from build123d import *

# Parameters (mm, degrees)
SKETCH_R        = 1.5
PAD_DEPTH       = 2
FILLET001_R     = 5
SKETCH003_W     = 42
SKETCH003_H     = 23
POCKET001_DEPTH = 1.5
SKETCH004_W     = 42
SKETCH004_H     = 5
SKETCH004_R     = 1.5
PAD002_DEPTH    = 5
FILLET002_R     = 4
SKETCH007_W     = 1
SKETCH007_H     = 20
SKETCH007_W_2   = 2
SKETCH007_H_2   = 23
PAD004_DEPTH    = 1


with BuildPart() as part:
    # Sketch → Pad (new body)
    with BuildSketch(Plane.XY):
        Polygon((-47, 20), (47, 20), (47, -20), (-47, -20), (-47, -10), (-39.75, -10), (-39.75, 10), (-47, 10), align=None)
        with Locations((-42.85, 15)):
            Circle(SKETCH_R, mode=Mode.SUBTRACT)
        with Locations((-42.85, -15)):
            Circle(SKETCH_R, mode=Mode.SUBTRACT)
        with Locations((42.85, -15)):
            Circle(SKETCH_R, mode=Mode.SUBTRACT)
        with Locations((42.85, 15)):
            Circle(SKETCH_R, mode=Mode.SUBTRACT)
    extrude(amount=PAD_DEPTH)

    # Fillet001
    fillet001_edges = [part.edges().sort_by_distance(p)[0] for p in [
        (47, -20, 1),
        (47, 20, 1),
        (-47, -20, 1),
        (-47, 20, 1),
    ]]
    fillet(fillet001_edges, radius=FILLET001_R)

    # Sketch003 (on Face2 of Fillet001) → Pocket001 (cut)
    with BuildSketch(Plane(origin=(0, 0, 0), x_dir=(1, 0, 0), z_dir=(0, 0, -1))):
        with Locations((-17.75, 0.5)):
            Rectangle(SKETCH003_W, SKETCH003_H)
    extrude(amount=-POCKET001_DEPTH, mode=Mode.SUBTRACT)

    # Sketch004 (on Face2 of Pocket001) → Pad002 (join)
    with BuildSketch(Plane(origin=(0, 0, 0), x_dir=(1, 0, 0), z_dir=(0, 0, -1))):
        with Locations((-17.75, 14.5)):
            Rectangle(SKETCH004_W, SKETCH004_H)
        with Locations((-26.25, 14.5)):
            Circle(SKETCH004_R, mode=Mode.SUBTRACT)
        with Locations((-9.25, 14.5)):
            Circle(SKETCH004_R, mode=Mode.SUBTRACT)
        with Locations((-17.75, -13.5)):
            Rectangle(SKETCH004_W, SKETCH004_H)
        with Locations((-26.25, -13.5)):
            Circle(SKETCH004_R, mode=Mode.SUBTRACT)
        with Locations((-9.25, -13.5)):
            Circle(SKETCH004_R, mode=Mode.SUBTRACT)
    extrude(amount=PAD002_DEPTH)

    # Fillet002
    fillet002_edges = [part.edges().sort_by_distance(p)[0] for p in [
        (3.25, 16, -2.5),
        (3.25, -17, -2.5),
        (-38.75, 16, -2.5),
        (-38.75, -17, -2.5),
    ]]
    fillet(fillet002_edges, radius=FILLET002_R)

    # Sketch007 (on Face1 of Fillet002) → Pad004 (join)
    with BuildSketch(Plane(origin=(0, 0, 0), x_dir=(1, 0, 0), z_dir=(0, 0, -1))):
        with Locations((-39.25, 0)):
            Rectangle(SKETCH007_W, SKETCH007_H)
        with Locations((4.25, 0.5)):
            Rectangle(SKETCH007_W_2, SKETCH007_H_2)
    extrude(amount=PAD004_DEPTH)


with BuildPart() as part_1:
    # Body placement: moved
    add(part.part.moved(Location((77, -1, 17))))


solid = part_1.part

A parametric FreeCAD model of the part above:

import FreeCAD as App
import Part
import Sketcher
from FreeCAD import Vector


def edges_at(feature, points):
    """Names of the edges that pass closest to the given points."""
    edges = feature.Shape.Edges
    near = lambda p: min(range(len(edges)), key=lambda i: edges[i].distToShape(Part.Vertex(*p))[0])
    return sorted({f"Edge{near(p) + 1}" for p in points})

doc = App.newDocument("Part")
body = doc.addObject("PartDesign::Body", "Body")

# Sketch on XY plane
sketch1 = body.newObject("Sketcher::SketchObject", "Sketch")
sketch1.AttachmentSupport = (doc.getObject("XY_Plane"), [""])
sketch1.MapMode = "FlatFace"
sketch1.addGeometry(Part.LineSegment(Vector(47, 20, 0), Vector(-47, 20, 0)), False)
sketch1.addGeometry(Part.LineSegment(Vector(-47, 20, 0), Vector(-47, 10, 0)), False)
sketch1.addGeometry(Part.LineSegment(Vector(-47, 10, 0), Vector(-39.8, 10, 0)), False)
sketch1.addGeometry(Part.LineSegment(Vector(-39.8, 10, 0), Vector(-39.8, -10, 0)), False)
sketch1.addGeometry(Part.LineSegment(Vector(-39.8, -10, 0), Vector(-47, -10, 0)), False)
sketch1.addGeometry(Part.LineSegment(Vector(-47, -10, 0), Vector(-47, -20, 0)), False)
sketch1.addGeometry(Part.LineSegment(Vector(-47, -20, 0), Vector(47, -20, 0)), False)
sketch1.addGeometry(Part.LineSegment(Vector(47, -20, 0), Vector(47, 20, 0)), False)
sketch1.addGeometry(Part.Circle(Vector(42.9, -15, 0), Vector(0, 0, 1), 1.5), False)
sketch1.addGeometry(Part.Circle(Vector(-42.9, -15, 0), Vector(0, 0, 1), 1.5), False)
sketch1.addGeometry(Part.Circle(Vector(42.9, 15, 0), Vector(0, 0, 1), 1.5), False)
sketch1.addGeometry(Part.Circle(Vector(-42.9, 15, 0), Vector(0, 0, 1), 1.5), False)
sketch1.addConstraint(Sketcher.Constraint("Coincident", 0, 2, 1, 1))
sketch1.addConstraint(Sketcher.Constraint("Coincident", 1, 2, 2, 1))
sketch1.addConstraint(Sketcher.Constraint("Coincident", 2, 2, 3, 1))
sketch1.addConstraint(Sketcher.Constraint("Coincident", 3, 2, 4, 1))
sketch1.addConstraint(Sketcher.Constraint("Coincident", 4, 2, 5, 1))
sketch1.addConstraint(Sketcher.Constraint("Coincident", 5, 2, 6, 1))
sketch1.addConstraint(Sketcher.Constraint("Coincident", 6, 2, 7, 1))
sketch1.addConstraint(Sketcher.Constraint("Coincident", 7, 2, 0, 1))
sketch1.addConstraint(Sketcher.Constraint("Horizontal", 0))
sketch1.addConstraint(Sketcher.Constraint("Vertical", 1))
sketch1.addConstraint(Sketcher.Constraint("Horizontal", 2))
sketch1.addConstraint(Sketcher.Constraint("Vertical", 3))
sketch1.addConstraint(Sketcher.Constraint("Horizontal", 4))
sketch1.addConstraint(Sketcher.Constraint("Vertical", 5))
sketch1.addConstraint(Sketcher.Constraint("Horizontal", 6))
sketch1.addConstraint(Sketcher.Constraint("Vertical", 7))
sketch1.addConstraint(Sketcher.Constraint("Equal", 8, 9))
sketch1.addConstraint(Sketcher.Constraint("Equal", 9, 10))
sketch1.addConstraint(Sketcher.Constraint("Equal", 10, 11))
sketch1.addConstraint(Sketcher.Constraint("Symmetric", 9, 3, 10, 3, -1, 1))
sketch1.addConstraint(Sketcher.Constraint("Symmetric", 8, 3, 11, 3, -1, 1))
sketch1.addConstraint(Sketcher.Constraint("Symmetric", 0, 2, 6, 2, -1, 1))
sketch1.addConstraint(Sketcher.Constraint("Symmetric", 8, 3, 9, 3, -2))
sketch1.addConstraint(Sketcher.Constraint("Symmetric", 1, 2, 4, 2, -1))
sketch1.addConstraint(Sketcher.Constraint("Diameter", 8, 3.0))
sketch1.addConstraint(Sketcher.Constraint("DistanceX", 0, 2, 0, 1, 94.0))
sketch1.addConstraint(Sketcher.Constraint("DistanceY", 1, 2, 1, 1, 10.0))
sketch1.addConstraint(Sketcher.Constraint("DistanceY", 3, 2, 3, 1, 20.0))
sketch1.addConstraint(Sketcher.Constraint("DistanceY", 8, 3, -1, 1, 15.0))
sketch1.addConstraint(Sketcher.Constraint("DistanceX", 2, 1, 2, 2, 7.25))
sketch1.addConstraint(Sketcher.Constraint("DistanceX", 9, 3, 8, 3, 85.7))
pad1 = body.newObject("PartDesign::Pad", "Pad")
pad1.Profile = sketch1
pad1.Length = 2
doc.recompute()

fillet = body.newObject("PartDesign::Fillet", "Fillet")
fillet.Base = (pad1, edges_at(pad1, [
    (47, -20, 1),
    (47, 20, 1),
    (-47, -20, 1),
    (-47, 20, 1),
]))
fillet.Radius = 5

# Sketch on XY plane
sketch2 = body.newObject("Sketcher::SketchObject", "Sketch001")
sketch2.AttachmentSupport = (doc.getObject("XY_Plane"), [""])
sketch2.MapMode = "FlatFace"
sketch2.addGeometry(Part.LineSegment(Vector(-39, -12, 0), Vector(-39, 11, 0)), False)
sketch2.addGeometry(Part.LineSegment(Vector(-39, 11, 0), Vector(3, 11, 0)), False)
sketch2.addGeometry(Part.LineSegment(Vector(3, 11, 0), Vector(3, -12, 0)), False)
sketch2.addGeometry(Part.LineSegment(Vector(3, -12, 0), Vector(-39, -12, 0)), False)
sketch2.addConstraint(Sketcher.Constraint("Coincident", 0, 2, 1, 1))
sketch2.addConstraint(Sketcher.Constraint("Coincident", 1, 2, 2, 1))
sketch2.addConstraint(Sketcher.Constraint("Coincident", 2, 2, 3, 1))
sketch2.addConstraint(Sketcher.Constraint("Coincident", 3, 2, 0, 1))
sketch2.addConstraint(Sketcher.Constraint("Vertical", 0))
sketch2.addConstraint(Sketcher.Constraint("Horizontal", 1))
sketch2.addConstraint(Sketcher.Constraint("Vertical", 2))
sketch2.addConstraint(Sketcher.Constraint("Horizontal", 3))
sketch2.addConstraint(Sketcher.Constraint("DistanceX", 1, 1, 1, 2, 42.0))
sketch2.addConstraint(Sketcher.Constraint("DistanceY", 0, 1, 0, 2, 23.0))
sketch2.addConstraint(Sketcher.Constraint("DistanceY", -1, 1, 0, 2, 11.0))
sketch2.addConstraint(Sketcher.Constraint("DistanceX", 0, 2, -1, 1, 38.75))
pocket1 = body.newObject("PartDesign::Pocket", "Pocket")
pocket1.Profile = sketch2
pocket1.Length = 1.5
pocket1.Reversed = True

# Sketch on XY plane
sketch3 = body.newObject("Sketcher::SketchObject", "Sketch002")
sketch3.AttachmentSupport = (doc.getObject("XY_Plane"), [""])
sketch3.MapMode = "FlatFace"
sketch3.addGeometry(Part.LineSegment(Vector(-38.8, -17, 0), Vector(-38.8, -12, 0)), False)
sketch3.addGeometry(Part.LineSegment(Vector(-38.8, -12, 0), Vector(3.2, -12, 0)), False)
sketch3.addGeometry(Part.LineSegment(Vector(3.2, -12, 0), Vector(3.2, -17, 0)), False)
sketch3.addGeometry(Part.LineSegment(Vector(3.2, -17, 0), Vector(-38.8, -17, 0)), False)
sketch3.addGeometry(Part.Circle(Vector(-26.2, -14.5, 0), Vector(0, 0, 1), 1.5), False)
sketch3.addGeometry(Part.Circle(Vector(-9.2, -14.5, 0), Vector(0, 0, 1), 1.5), False)
sketch3.addGeometry(Part.LineSegment(Vector(-38.8, 11, 0), Vector(-38.8, 16, 0)), False)
sketch3.addGeometry(Part.LineSegment(Vector(-38.8, 16, 0), Vector(3.2, 16, 0)), False)
sketch3.addGeometry(Part.LineSegment(Vector(3.2, 16, 0), Vector(3.2, 11, 0)), False)
sketch3.addGeometry(Part.LineSegment(Vector(3.2, 11, 0), Vector(-38.8, 11, 0)), False)
sketch3.addGeometry(Part.Circle(Vector(-26.2, 13.5, 0), Vector(0, 0, 1), 1.5), False)
sketch3.addGeometry(Part.Circle(Vector(-9.2, 13.5, 0), Vector(0, 0, 1), 1.5), False)
sketch3.addConstraint(Sketcher.Constraint("Coincident", 0, 2, 1, 1))
sketch3.addConstraint(Sketcher.Constraint("Coincident", 1, 2, 2, 1))
sketch3.addConstraint(Sketcher.Constraint("Coincident", 2, 2, 3, 1))
sketch3.addConstraint(Sketcher.Constraint("Coincident", 3, 2, 0, 1))
sketch3.addConstraint(Sketcher.Constraint("Coincident", 6, 2, 7, 1))
sketch3.addConstraint(Sketcher.Constraint("Coincident", 7, 2, 8, 1))
sketch3.addConstraint(Sketcher.Constraint("Coincident", 8, 2, 9, 1))
sketch3.addConstraint(Sketcher.Constraint("Coincident", 9, 2, 6, 1))
sketch3.addConstraint(Sketcher.Constraint("Vertical", 0))
sketch3.addConstraint(Sketcher.Constraint("Horizontal", 1))
sketch3.addConstraint(Sketcher.Constraint("Vertical", 2))
sketch3.addConstraint(Sketcher.Constraint("Horizontal", 3))
sketch3.addConstraint(Sketcher.Constraint("Vertical", 6))
sketch3.addConstraint(Sketcher.Constraint("Horizontal", 7))
sketch3.addConstraint(Sketcher.Constraint("Vertical", 8))
sketch3.addConstraint(Sketcher.Constraint("Horizontal", 9))
sketch3.addConstraint(Sketcher.Constraint("Equal", 4, 5))
sketch3.addConstraint(Sketcher.Constraint("Equal", 5, 10))
sketch3.addConstraint(Sketcher.Constraint("Equal", 10, 11))
sketch3.addConstraint(Sketcher.Constraint("Horizontal", 4, 3, 5, 3))
sketch3.addConstraint(Sketcher.Constraint("Horizontal", 10, 3, 11, 3))
sketch3.addConstraint(Sketcher.Constraint("Vertical", 4, 3, 10, 3))
sketch3.addConstraint(Sketcher.Constraint("Vertical", 5, 3, 11, 3))
sketch3.addConstraint(Sketcher.Constraint("Vertical", 3, 2, 6, 2))
sketch3.addConstraint(Sketcher.Constraint("Vertical", 2, 2, 7, 2))
sketch3.addConstraint(Sketcher.Constraint("Equal", 2, 6))
sketch3.addConstraint(Sketcher.Constraint("Diameter", 4, 3.0))
sketch3.addConstraint(Sketcher.Constraint("DistanceX", 1, 1, 1, 2, 42.0))
sketch3.addConstraint(Sketcher.Constraint("DistanceY", 0, 1, 0, 2, 5.0))
sketch3.addConstraint(Sketcher.Constraint("DistanceY", 0, 2, -1, 1, 12.0))
sketch3.addConstraint(Sketcher.Constraint("DistanceY", -1, 1, 6, 2, 16.0))
sketch3.addConstraint(Sketcher.Constraint("DistanceX", 4, 3, 5, 3, 17.0))
sketch3.addConstraint(Sketcher.Constraint("DistanceY", 4, 3, 10, 3, 28.0))
sketch3.addConstraint(Sketcher.Constraint("DistanceY", 4, 3, -1, 1, 14.5))
sketch3.addConstraint(Sketcher.Constraint("DistanceX", 0, 2, 4, 3, 12.5))
sketch3.addConstraint(Sketcher.Constraint("DistanceX", 4, 3, -1, 1, 26.25))
pad2 = body.newObject("PartDesign::Pad", "Pad001")
pad2.Profile = sketch3
pad2.Length = 5
pad2.Reversed = True
doc.recompute()

fillet2 = body.newObject("PartDesign::Fillet", "Fillet001")
fillet2.Base = (pad2, edges_at(pad2, [
    (3.25, 16, -2.5),
    (3.25, -17, -2.5),
    (-38.75, 16, -2.5),
    (-38.75, -17, -2.5),
]))
fillet2.Radius = 4

# Sketch on XY plane
sketch4 = body.newObject("Sketcher::SketchObject", "Sketch003")
sketch4.AttachmentSupport = (doc.getObject("XY_Plane"), [""])
sketch4.MapMode = "FlatFace"
sketch4.addGeometry(Part.LineSegment(Vector(-39.8, -10, 0), Vector(-39.8, 10, 0)), False)
sketch4.addGeometry(Part.LineSegment(Vector(-39.8, 10, 0), Vector(-38.8, 10, 0)), False)
sketch4.addGeometry(Part.LineSegment(Vector(-38.8, 10, 0), Vector(-38.8, -10, 0)), False)
sketch4.addGeometry(Part.LineSegment(Vector(-38.8, -10, 0), Vector(-39.8, -10, 0)), False)
sketch4.addGeometry(Part.LineSegment(Vector(3.2, -12, 0), Vector(3.2, 11, 0)), False)
sketch4.addGeometry(Part.LineSegment(Vector(3.2, 11, 0), Vector(5.2, 11, 0)), False)
sketch4.addGeometry(Part.LineSegment(Vector(5.2, 11, 0), Vector(5.2, -12, 0)), False)
sketch4.addGeometry(Part.LineSegment(Vector(5.2, -12, 0), Vector(3.2, -12, 0)), False)
sketch4.addConstraint(Sketcher.Constraint("Coincident", 0, 2, 1, 1))
sketch4.addConstraint(Sketcher.Constraint("Coincident", 1, 2, 2, 1))
sketch4.addConstraint(Sketcher.Constraint("Coincident", 2, 2, 3, 1))
sketch4.addConstraint(Sketcher.Constraint("Coincident", 3, 2, 0, 1))
sketch4.addConstraint(Sketcher.Constraint("Coincident", 4, 2, 5, 1))
sketch4.addConstraint(Sketcher.Constraint("Coincident", 5, 2, 6, 1))
sketch4.addConstraint(Sketcher.Constraint("Coincident", 6, 2, 7, 1))
sketch4.addConstraint(Sketcher.Constraint("Coincident", 7, 2, 4, 1))
sketch4.addConstraint(Sketcher.Constraint("Vertical", 0))
sketch4.addConstraint(Sketcher.Constraint("Horizontal", 1))
sketch4.addConstraint(Sketcher.Constraint("Vertical", 2))
sketch4.addConstraint(Sketcher.Constraint("Horizontal", 3))
sketch4.addConstraint(Sketcher.Constraint("Vertical", 4))
sketch4.addConstraint(Sketcher.Constraint("Horizontal", 5))
sketch4.addConstraint(Sketcher.Constraint("Vertical", 6))
sketch4.addConstraint(Sketcher.Constraint("Horizontal", 7))
sketch4.addConstraint(Sketcher.Constraint("DistanceX", 1, 1, 1, 2, 1.0))
sketch4.addConstraint(Sketcher.Constraint("DistanceX", 5, 1, 5, 2, 2.0))
sketch4.addConstraint(Sketcher.Constraint("DistanceY", 0, 1, 0, 2, 20.0))
sketch4.addConstraint(Sketcher.Constraint("DistanceY", 4, 1, 4, 2, 23.0))
sketch4.addConstraint(Sketcher.Constraint("DistanceY", -1, 1, 0, 2, 10.0))
sketch4.addConstraint(Sketcher.Constraint("DistanceY", -1, 1, 4, 2, 11.0))
sketch4.addConstraint(Sketcher.Constraint("DistanceX", 1, 2, 4, 2, 42.0))
sketch4.addConstraint(Sketcher.Constraint("DistanceX", 0, 2, -1, 1, 39.75))
pad3 = body.newObject("PartDesign::Pad", "Pad002")
pad3.Profile = sketch4
pad3.Length = 1
pad3.Reversed = True
body2 = doc.addObject("PartDesign::Body", "Body001")
doc.recompute()

body.Placement = App.Placement(Vector(77, -1, 17), App.Rotation(Vector(0, 0, 1), 0))
boolean = body2.newObject("PartDesign::Boolean", "Boolean")
boolean.Type = "Fuse"
boolean.addObjects([body])

doc.recompute()
